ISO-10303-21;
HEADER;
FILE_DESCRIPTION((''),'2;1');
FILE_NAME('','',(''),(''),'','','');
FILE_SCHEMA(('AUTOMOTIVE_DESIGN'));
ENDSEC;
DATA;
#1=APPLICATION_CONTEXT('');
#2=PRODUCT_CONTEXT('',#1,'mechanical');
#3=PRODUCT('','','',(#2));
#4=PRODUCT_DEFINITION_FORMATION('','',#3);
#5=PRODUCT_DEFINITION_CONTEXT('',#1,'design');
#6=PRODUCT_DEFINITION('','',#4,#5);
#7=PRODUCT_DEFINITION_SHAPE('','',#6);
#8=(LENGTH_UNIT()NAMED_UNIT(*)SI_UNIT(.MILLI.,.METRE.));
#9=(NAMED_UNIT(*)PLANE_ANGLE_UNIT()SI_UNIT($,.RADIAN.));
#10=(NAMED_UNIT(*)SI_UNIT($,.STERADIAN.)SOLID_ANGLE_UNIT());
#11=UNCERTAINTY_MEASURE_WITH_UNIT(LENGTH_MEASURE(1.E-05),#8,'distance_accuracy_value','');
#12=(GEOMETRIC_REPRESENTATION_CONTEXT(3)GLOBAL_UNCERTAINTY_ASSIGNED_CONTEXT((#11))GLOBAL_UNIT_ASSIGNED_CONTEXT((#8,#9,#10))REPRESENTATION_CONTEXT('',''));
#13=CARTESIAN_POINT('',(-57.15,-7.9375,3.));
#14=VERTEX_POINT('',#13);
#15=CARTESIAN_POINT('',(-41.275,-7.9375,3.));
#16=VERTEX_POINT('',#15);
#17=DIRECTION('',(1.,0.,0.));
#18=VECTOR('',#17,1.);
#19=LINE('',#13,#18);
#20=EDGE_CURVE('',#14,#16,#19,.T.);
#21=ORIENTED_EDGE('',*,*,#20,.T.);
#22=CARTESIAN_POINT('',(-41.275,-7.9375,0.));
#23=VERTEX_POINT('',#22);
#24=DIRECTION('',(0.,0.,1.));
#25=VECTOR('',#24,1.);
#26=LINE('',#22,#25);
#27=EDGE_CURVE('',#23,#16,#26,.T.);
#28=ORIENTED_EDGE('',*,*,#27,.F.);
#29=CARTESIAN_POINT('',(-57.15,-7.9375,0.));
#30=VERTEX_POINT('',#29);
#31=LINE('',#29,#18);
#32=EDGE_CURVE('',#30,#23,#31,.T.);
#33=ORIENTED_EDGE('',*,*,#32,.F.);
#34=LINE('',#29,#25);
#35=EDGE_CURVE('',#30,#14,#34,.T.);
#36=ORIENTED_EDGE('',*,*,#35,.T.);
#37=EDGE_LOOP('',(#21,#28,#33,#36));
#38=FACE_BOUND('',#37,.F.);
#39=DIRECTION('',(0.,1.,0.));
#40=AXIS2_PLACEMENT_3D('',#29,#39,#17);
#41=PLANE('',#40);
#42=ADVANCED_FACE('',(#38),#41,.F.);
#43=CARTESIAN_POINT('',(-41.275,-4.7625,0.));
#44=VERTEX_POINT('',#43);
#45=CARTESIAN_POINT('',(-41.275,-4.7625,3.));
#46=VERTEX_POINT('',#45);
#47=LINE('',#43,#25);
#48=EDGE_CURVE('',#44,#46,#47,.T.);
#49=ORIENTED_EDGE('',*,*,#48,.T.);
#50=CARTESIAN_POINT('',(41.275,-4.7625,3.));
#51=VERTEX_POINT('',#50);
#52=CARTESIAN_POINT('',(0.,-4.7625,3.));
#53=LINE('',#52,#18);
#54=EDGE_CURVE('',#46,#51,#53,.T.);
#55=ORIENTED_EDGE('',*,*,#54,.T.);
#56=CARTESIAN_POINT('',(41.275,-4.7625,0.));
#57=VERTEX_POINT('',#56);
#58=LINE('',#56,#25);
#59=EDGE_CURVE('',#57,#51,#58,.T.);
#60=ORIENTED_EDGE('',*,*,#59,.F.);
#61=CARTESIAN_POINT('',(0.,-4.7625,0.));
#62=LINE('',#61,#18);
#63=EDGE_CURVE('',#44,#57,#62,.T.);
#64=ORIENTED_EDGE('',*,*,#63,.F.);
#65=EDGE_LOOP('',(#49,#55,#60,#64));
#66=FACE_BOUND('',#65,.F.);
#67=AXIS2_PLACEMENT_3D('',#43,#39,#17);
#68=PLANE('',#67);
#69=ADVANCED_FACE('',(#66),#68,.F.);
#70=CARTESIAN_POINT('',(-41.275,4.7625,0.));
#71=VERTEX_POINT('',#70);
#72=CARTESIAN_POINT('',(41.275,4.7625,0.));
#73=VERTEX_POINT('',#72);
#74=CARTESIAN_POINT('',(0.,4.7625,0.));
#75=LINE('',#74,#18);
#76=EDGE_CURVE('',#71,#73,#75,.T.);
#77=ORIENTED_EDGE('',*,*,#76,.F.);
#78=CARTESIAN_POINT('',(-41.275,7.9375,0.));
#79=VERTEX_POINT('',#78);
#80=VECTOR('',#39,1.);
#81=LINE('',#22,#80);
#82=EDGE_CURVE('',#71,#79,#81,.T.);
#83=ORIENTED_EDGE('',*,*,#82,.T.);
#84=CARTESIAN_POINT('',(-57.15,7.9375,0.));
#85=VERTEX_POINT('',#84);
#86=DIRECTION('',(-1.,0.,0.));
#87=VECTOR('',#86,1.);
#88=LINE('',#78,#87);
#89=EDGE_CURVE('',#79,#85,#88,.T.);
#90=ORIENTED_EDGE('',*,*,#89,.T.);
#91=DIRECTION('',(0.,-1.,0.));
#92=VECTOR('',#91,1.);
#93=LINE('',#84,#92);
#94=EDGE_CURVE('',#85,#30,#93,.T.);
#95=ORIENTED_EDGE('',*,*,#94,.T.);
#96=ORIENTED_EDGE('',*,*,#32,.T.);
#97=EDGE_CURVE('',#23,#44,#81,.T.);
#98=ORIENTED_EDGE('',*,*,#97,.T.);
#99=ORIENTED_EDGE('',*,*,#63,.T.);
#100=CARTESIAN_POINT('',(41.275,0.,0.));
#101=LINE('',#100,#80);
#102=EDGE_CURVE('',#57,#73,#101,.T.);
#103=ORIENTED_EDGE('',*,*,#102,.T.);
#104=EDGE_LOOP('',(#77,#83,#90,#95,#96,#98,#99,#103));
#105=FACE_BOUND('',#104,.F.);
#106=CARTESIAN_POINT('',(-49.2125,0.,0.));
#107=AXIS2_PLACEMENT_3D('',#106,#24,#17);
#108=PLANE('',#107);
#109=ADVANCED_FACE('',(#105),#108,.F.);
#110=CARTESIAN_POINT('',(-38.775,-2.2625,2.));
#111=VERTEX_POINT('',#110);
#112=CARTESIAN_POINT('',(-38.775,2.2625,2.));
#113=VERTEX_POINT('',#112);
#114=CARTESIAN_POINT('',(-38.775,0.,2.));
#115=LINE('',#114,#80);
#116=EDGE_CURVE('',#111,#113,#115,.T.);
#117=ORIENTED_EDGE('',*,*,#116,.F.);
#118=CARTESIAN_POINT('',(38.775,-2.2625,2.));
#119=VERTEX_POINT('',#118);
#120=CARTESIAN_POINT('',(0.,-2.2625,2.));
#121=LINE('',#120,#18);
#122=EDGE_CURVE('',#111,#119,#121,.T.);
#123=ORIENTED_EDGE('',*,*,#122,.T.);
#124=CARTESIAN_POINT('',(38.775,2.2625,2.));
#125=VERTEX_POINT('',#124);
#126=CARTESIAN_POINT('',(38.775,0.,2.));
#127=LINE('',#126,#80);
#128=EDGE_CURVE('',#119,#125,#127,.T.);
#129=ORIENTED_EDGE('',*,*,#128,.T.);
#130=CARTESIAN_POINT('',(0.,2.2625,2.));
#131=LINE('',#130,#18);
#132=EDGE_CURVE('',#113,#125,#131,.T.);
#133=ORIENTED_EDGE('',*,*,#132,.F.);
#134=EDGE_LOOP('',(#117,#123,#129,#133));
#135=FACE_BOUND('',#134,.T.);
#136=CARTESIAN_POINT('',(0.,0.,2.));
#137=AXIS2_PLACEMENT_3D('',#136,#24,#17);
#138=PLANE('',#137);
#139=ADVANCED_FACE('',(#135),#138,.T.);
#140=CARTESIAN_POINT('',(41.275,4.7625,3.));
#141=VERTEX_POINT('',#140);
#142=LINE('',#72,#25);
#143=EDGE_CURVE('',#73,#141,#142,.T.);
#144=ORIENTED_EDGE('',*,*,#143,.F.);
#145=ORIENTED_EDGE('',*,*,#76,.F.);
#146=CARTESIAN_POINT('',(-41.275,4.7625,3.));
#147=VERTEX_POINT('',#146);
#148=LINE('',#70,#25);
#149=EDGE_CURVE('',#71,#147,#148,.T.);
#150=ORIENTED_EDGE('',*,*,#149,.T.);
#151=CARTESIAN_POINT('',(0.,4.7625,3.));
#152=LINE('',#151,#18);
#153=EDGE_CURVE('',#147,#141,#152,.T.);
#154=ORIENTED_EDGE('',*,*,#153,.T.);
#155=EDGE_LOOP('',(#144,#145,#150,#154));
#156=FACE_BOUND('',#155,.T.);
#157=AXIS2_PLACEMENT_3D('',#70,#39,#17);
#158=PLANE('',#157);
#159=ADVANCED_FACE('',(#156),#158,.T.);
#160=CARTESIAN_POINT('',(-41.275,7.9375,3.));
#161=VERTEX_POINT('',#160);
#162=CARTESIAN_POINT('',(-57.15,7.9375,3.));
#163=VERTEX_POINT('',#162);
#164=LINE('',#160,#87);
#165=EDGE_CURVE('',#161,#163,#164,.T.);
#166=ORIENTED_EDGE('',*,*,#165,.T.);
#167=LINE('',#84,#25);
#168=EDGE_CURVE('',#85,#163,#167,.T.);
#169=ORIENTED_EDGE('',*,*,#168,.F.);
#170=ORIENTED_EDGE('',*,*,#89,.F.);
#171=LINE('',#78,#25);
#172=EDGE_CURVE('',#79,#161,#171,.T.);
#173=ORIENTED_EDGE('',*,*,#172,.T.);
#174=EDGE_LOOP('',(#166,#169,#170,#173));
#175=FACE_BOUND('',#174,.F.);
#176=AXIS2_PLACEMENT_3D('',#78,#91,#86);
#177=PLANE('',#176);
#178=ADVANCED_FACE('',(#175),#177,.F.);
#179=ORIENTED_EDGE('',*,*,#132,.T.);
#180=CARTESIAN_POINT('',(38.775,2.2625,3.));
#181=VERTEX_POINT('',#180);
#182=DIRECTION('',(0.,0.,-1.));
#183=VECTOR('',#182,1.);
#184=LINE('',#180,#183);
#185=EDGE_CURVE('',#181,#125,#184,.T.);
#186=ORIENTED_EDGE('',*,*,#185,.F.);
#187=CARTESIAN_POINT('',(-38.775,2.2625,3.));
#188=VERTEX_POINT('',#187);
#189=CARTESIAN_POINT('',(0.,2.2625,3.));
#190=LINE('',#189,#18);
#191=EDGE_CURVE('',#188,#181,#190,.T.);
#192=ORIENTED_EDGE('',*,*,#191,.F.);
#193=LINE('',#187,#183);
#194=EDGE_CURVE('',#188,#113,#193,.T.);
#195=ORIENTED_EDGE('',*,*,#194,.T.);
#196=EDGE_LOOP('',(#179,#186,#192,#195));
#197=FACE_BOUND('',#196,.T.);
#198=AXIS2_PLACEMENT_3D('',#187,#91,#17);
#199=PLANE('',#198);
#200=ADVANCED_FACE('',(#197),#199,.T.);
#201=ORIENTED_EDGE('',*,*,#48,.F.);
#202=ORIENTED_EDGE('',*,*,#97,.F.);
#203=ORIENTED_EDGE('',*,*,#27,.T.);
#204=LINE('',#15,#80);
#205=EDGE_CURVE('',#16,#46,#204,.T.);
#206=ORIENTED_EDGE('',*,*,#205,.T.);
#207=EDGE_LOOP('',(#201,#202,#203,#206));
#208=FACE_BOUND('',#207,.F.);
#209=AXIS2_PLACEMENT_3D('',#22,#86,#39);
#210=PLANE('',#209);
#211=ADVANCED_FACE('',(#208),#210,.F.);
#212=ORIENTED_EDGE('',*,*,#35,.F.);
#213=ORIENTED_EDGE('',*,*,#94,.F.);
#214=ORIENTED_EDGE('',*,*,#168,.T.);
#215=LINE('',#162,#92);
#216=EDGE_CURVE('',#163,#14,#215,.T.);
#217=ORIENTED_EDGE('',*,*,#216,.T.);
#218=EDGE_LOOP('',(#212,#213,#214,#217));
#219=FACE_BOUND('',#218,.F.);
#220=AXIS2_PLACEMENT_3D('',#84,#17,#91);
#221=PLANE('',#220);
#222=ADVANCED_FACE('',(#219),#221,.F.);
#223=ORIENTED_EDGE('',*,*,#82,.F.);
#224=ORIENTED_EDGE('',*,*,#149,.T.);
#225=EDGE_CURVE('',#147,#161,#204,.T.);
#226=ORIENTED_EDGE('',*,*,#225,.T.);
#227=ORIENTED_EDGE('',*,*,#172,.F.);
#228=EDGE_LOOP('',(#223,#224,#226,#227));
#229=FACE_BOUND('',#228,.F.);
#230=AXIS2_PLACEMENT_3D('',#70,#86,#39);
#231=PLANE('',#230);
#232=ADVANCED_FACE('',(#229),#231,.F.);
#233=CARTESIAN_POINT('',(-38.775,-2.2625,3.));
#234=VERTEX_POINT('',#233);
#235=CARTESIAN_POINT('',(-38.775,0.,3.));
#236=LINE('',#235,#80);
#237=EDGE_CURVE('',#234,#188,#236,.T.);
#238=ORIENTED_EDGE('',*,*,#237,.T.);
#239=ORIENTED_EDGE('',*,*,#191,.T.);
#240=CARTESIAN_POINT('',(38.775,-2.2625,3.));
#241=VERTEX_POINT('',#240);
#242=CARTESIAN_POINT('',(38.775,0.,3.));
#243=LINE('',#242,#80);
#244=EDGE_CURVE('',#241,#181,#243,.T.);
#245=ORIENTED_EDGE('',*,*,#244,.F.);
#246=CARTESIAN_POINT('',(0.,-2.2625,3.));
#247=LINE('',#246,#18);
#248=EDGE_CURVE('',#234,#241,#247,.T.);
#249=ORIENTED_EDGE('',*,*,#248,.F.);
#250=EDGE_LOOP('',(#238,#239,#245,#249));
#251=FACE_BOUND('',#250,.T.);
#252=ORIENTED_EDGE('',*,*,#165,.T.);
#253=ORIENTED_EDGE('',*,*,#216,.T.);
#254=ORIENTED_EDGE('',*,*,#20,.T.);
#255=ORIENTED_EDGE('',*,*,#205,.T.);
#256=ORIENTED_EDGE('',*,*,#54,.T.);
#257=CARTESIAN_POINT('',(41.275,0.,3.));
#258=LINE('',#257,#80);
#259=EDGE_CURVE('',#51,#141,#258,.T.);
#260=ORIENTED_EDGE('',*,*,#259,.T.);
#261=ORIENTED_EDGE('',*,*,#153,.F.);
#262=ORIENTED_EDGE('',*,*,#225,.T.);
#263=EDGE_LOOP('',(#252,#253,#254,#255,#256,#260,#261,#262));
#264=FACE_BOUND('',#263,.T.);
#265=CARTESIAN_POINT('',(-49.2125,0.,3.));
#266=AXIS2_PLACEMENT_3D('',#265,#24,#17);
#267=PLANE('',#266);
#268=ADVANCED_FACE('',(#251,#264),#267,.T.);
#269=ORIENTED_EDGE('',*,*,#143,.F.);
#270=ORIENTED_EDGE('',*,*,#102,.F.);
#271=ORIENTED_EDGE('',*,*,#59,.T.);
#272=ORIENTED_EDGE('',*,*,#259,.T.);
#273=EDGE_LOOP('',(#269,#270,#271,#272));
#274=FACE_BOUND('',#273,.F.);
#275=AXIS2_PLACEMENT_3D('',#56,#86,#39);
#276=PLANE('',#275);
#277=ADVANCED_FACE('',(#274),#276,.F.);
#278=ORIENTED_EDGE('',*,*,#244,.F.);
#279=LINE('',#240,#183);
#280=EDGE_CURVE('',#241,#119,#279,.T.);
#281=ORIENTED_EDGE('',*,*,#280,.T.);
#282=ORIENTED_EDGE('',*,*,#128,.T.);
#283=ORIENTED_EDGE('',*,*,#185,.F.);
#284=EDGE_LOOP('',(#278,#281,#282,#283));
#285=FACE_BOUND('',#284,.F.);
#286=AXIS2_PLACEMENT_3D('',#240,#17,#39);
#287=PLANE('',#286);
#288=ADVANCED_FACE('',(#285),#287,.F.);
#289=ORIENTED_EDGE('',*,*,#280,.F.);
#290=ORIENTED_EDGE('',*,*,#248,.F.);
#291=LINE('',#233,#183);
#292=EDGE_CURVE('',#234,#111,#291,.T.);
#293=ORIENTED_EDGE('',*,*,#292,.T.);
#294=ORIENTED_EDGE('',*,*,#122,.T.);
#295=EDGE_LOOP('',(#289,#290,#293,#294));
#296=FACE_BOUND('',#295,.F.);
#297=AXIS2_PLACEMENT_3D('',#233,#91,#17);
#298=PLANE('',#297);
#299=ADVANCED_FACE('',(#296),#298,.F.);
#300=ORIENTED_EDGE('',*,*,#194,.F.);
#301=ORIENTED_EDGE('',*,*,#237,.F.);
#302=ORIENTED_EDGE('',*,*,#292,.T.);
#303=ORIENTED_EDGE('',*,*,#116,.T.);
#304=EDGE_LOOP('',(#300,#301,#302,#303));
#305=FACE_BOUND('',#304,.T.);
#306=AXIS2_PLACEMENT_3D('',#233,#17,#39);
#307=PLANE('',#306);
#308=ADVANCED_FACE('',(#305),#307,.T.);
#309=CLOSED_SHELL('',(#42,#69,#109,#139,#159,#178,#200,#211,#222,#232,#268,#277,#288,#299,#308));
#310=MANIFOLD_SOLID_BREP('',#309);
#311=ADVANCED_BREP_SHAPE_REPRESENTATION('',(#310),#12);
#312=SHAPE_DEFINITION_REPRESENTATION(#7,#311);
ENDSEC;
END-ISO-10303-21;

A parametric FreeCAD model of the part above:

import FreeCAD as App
import Part
import Sketcher
from FreeCAD import Vector
Q = App.Units.Quantity

doc = App.newDocument("Part")
body = doc.addObject("PartDesign::Body", "Body")

# Sketch on XY plane
sketch1 = body.newObject("Sketcher::SketchObject", "Sketch")
sketch1.AttachmentSupport = (doc.getObject("XY_Plane"), [""])
sketch1.MapMode = "FlatFace"
sketch1.addGeometry([
    Part.LineSegment(Vector(-41.3, 7.9, 0), Vector(-57.1, 7.9, 0)),  # 0
    Part.LineSegment(Vector(-57.1, 7.9, 0), Vector(-57.1, -7.9, 0)),  # 1
    Part.LineSegment(Vector(-57.1, -7.9, 0), Vector(-41.3, -7.9, 0)),  # 2
    Part.LineSegment(Vector(-41.3, -7.9, 0), Vector(-41.3, -4.8, 0)),  # 3
    Part.LineSegment(Vector(-41.3, -4.8, 0), Vector(41.3, -4.8, 0)),  # 4
    Part.LineSegment(Vector(41.3, -4.8, 0), Vector(41.3, 4.8, 0)),  # 5
    Part.LineSegment(Vector(41.3, 4.8, 0), Vector(-41.3, 4.8, 0)),  # 6
    Part.LineSegment(Vector(-41.3, 4.8, 0), Vector(-41.3, 7.9, 0)),  # 7
], False)
sketch1.addConstraint([
    Sketcher.Constraint("Coincident", 0, 2, 1, 1),
    Sketcher.Constraint("Coincident", 1, 2, 2, 1),
    Sketcher.Constraint("Coincident", 2, 2, 3, 1),
    Sketcher.Constraint("Coincident", 3, 2, 4, 1),
    Sketcher.Constraint("Coincident", 4, 2, 5, 1),
    Sketcher.Constraint("Coincident", 5, 2, 6, 1),
    Sketcher.Constraint("Coincident", 6, 2, 7, 1),
    Sketcher.Constraint("Coincident", 7, 2, 0, 1),
    Sketcher.Constraint("Horizontal", 0),
    Sketcher.Constraint("Vertical", 1),
    Sketcher.Constraint("Horizontal", 2),
    Sketcher.Constraint("Vertical", 3),
    Sketcher.Constraint("Horizontal", 4),
    Sketcher.Constraint("Vertical", 5),
    Sketcher.Constraint("Horizontal", 6),
    Sketcher.Constraint("Vertical", 7),
    Sketcher.Constraint("Symmetric", 3, 2, 5, 2, -1, 1),
    Sketcher.Constraint("Symmetric", 2, 2, 7, 2, -1),
    Sketcher.Constraint("Equal", 2, 1),
    Sketcher.Constraint("DistanceX", 4, 1, 4, 2, Q("3.25 in")),
    Sketcher.Constraint("DistanceY", 3, 2, 0, 2, Q("0.5 in")),
    Sketcher.Constraint("DistanceX", 0, 2, 0, 1, Q("0.625 in")),
])
pad1 = body.newObject("PartDesign::Pad", "Pad")
pad1.Profile = sketch1
pad1.Length = 3

# Sketch on XY plane
sketch2 = body.newObject("Sketcher::SketchObject", "Sketch001")
sketch2.AttachmentSupport = (doc.getObject("XY_Plane"), [""])
sketch2.MapMode = "FlatFace"
sketch2.AttachmentOffset = App.Placement(Vector(0, 0, 3), App.Rotation())
sketch2.addGeometry([
    Part.LineSegment(Vector(-38.8, 2.3, 0), Vector(-38.8, -2.3, 0)),
    Part.LineSegment(Vector(-38.8, -2.3, 0), Vector(38.8, -2.3, 0)),
    Part.LineSegment(Vector(38.8, -2.3, 0), Vector(38.8, 2.3, 0)),
    Part.LineSegment(Vector(38.8, 2.3, 0), Vector(-38.8, 2.3, 0)),
], False)
sketch2.addConstraint([
    Sketcher.Constraint("Coincident", 0, 2, 1, 1),
    Sketcher.Constraint("Coincident", 1, 2, 2, 1),
    Sketcher.Constraint("Coincident", 2, 2, 3, 1),
    Sketcher.Constraint("Coincident", 3, 2, 0, 1),
    Sketcher.Constraint("Vertical", 0),
    Sketcher.Constraint("Horizontal", 1),
    Sketcher.Constraint("Vertical", 2),
    Sketcher.Constraint("Horizontal", 3),
    Sketcher.Constraint("Symmetric", 0, 2, 2, 2, -1, 1),
    Sketcher.Constraint("DistanceX", 1, 1, 1, 2, Q("77.55 mm")),
    Sketcher.Constraint("DistanceY", 0, 2, 0, 1, Q("4.525 mm")),
])
pocket1 = body.newObject("PartDesign::Pocket", "Pocket")
pocket1.Profile = sketch2
pocket1.Length = 1

doc.recompute()
